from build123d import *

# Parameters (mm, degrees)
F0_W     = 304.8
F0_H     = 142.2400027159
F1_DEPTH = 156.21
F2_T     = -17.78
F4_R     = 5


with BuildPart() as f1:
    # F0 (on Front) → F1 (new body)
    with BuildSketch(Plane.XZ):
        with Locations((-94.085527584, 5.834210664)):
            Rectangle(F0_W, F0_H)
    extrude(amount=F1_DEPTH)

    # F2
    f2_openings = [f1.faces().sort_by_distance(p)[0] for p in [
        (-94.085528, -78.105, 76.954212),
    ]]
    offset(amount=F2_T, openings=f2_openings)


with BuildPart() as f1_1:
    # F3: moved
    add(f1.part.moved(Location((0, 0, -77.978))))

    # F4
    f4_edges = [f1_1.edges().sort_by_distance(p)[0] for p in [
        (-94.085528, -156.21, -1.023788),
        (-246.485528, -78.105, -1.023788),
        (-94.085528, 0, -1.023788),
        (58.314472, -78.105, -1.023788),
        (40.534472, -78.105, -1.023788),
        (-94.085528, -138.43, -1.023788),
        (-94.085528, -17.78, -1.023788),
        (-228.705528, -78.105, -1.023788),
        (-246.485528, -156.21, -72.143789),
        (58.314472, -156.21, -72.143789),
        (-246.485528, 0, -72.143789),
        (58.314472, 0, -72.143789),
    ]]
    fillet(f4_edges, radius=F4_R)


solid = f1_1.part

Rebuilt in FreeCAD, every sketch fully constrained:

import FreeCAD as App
import Part
import Sketcher
Q = App.Units.Quantity


def edges_at(feature, points):
    """Names of the edges that pass closest to the given points."""
    edges = feature.Shape.Edges
    near = lambda p: min(range(len(edges)), key=lambda i: edges[i].distToShape(Part.Vertex(*p))[0])
    return sorted({f"Edge{near(p) + 1}" for p in points})


def faces_at(feature, points):
    """Names of the faces that lie closest to the given points."""
    faces = feature.Shape.Faces
    near = lambda p: min(range(len(faces)), key=lambda i: faces[i].distToShape(Part.Vertex(*p))[0])
    return sorted({f"Face{near(p) + 1}" for p in points})


def add_polygon(sketch, points):
    """Adds a closed chain of lines whose ends are joined by coincident constraints."""
    first, n = sketch.GeometryCount, len(points)
    for a, b in zip(points, points[1:] + points[:1]):
        sketch.addGeometry(Part.LineSegment(App.Vector(*a, 0), App.Vector(*b, 0)), False)
    for i in range(n):
        sketch.addConstraint(Sketcher.Constraint("Coincident", first + i, 2, first + (i + 1) % n, 1))

doc = App.newDocument("Part")
body = doc.addObject("PartDesign::Body", "Body")

# Sketch on XZ plane
sketch1 = doc.addObject("Sketcher::SketchObject", "Sketch")
body.addObject(sketch1)
sketch1.AttachmentSupport = (doc.XZ_Plane, [""])
sketch1.MapMode = "FlatFace"
add_polygon(sketch1, [(-246.485528, 76.954212), (-246.485528, -65.285791), (58.314472, -65.285791), (58.314472, 76.954212)])  # lines 0-3
sketch1.addConstraint(Sketcher.Constraint("Vertical", 0))
sketch1.addConstraint(Sketcher.Constraint("Horizontal", 1))
sketch1.addConstraint(Sketcher.Constraint("Vertical", 2))
sketch1.addConstraint(Sketcher.Constraint("Horizontal", 3))
sketch1.addConstraint(Sketcher.Constraint("DistanceX", 1, 1, 1, 2, Q("12 in")))
sketch1.addConstraint(Sketcher.Constraint("DistanceY", 0, 2, 0, 1, Q("5.6000001 in")))
sketch1.addConstraint(Sketcher.Constraint("DistanceY", 0, 2, -1, 1, 65.285791))
sketch1.addConstraint(Sketcher.Constraint("DistanceX", 0, 2, -1, 1, 246.485528))
pad1 = doc.addObject("PartDesign::Pad", "Pad")
body.addObject(pad1)
pad1.Profile = sketch1
pad1.Length = Q("6.15 in")
doc.recompute()

thickness = doc.addObject("PartDesign::Thickness", "Thickness")
body.addObject(thickness)
thickness.Base = (pad1, faces_at(pad1, [(-94.086, -78.105, 76.954)]))
thickness.Value = Q("0.7 in")
thickness.Reversed = True
thickness.Join = "Arc"
body2 = doc.addObject("PartDesign::Body", "Body001")
doc.recompute()

body.Placement = App.Placement(App.Vector(0, 0, -77.978), App.Rotation(App.Vector(0, 0, 1), 0))
boolean = doc.addObject("PartDesign::Boolean", "Boolean")
body2.addObject(boolean)
boolean.Type = "Fuse"
boolean.addObjects([body])
doc.recompute()

fillet = doc.addObject("PartDesign::Fillet", "Fillet")
body2.addObject(fillet)
fillet.Base = (boolean, edges_at(boolean, [
    (-94.086, -156.21, -1.024),
    (-246.486, -78.105, -1.024),
    (-94.086, 0, -1.024),
    (58.314, -78.105, -1.024),
    (40.534, -78.105, -1.024),
    (-94.086, -138.43, -1.024),
    (-94.086, -17.78, -1.024),
    (-228.706, -78.105, -1.024),
    (-246.486, -156.21, -72.144),
    (58.314, -156.21, -72.144),
    (-246.486, 0, -72.144),
    (58.314, 0, -72.144),
]))
fillet.Radius = 5

doc.recompute()
